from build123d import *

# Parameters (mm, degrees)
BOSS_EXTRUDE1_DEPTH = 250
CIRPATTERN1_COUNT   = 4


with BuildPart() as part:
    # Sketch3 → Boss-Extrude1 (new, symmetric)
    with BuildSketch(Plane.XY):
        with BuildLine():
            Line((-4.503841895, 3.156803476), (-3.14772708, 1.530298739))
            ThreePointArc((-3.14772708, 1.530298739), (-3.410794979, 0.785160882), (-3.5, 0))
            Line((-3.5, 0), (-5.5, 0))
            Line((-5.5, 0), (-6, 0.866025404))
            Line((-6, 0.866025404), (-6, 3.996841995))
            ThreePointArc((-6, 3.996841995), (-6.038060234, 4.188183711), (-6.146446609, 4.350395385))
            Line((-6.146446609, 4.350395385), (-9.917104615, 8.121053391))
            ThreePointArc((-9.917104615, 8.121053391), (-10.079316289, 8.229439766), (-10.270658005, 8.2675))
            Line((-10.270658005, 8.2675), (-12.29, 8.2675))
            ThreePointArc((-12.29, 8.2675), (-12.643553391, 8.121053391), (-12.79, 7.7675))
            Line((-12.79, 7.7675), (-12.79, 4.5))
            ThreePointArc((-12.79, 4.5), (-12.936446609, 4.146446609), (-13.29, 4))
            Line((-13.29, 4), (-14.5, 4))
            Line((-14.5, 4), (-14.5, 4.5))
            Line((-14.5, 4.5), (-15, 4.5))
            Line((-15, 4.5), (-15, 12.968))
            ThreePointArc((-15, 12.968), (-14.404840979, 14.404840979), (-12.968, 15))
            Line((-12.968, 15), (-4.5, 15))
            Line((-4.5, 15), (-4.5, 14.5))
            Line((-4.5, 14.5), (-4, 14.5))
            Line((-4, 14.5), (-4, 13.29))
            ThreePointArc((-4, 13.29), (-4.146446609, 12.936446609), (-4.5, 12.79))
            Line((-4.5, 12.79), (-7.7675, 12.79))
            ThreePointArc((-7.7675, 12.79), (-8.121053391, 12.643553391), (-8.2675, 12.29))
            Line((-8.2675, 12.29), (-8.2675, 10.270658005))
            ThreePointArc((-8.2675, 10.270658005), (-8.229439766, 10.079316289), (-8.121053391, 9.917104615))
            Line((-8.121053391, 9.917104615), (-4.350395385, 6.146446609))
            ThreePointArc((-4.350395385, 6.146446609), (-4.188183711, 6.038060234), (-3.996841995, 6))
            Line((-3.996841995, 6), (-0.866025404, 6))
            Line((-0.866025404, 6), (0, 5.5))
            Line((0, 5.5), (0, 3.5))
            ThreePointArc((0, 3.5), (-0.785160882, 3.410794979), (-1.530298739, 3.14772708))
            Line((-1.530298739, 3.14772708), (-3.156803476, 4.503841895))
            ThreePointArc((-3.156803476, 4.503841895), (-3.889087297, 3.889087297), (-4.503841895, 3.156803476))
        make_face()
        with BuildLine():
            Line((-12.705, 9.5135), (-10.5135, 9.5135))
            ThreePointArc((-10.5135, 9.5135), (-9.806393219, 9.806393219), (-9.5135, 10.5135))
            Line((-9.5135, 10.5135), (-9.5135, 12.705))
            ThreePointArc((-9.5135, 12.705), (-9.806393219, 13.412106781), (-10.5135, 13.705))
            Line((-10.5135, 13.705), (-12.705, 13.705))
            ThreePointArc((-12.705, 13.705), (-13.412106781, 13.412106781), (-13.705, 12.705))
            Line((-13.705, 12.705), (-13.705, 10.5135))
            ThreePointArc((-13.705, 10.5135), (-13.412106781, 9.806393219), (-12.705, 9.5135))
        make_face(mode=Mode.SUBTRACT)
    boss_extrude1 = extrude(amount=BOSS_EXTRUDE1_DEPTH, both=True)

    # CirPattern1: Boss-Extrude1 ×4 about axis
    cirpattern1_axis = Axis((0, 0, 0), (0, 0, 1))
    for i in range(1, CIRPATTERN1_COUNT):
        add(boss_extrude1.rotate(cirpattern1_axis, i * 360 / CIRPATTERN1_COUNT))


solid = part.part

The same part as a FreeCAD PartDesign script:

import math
import FreeCAD as App
import Part
import Sketcher

V = App.Vector
Q = App.Units.Quantity

doc = App.newDocument("Part")
params = doc.addObject("Spreadsheet::Sheet", "Params")
for row, (alias, value) in enumerate([
    ("sketch1_radius", "1 mm"),
    ("sketch1_radius2", "5.5 mm"),
    ("sketch1_radius3", "3.5 mm"),
    ("sketch1_radius4", "0.5 mm"),
    ("sketch1_width", "2 mm"),
    ("pad1_length", "500 mm"),
], start=1):
    params.set(f"A{row}", alias)
    params.set(f"B{row}", "=" + value)
    params.setAlias(f"B{row}", alias)

body = doc.addObject("PartDesign::Body", "Body")

sketch1 = doc.addObject("Sketcher::SketchObject", "Sketch")
body.addObject(sketch1)
sketch1.AttachmentSupport = (doc.XY_Plane, [""])
sketch1.MapMode = "FlatFace"
sketch1.addGeometry([
    Part.LineSegment(V(-3.15, 1.53, 0), V(-4.5, 3.16, 0)),
    Part.ArcOfCircle(Part.Circle(V(0, 0, 0), V(0, 0, 1), 5.5), math.radians(125.03), math.radians(144.97)),
    Part.LineSegment(V(-3.16, 4.5, 0), V(-1.53, 3.15, 0)),
    Part.ArcOfCircle(Part.Circle(V(0, 0, 0), V(0, 0, 1), 3.5), math.radians(90), math.radians(116)),
    Part.LineSegment(V(0, 3.5, 0), V(0, 5.5, 0)),
    Part.LineSegment(V(0, 5.5, 0), V(-0.87, 6, 0)),
    Part.LineSegment(V(-0.87, 6, 0), V(-4, 6, 0)),
    Part.ArcOfCircle(Part.Circle(V(-4, 6.5, 0), V(0, 0, 1), 0.5), math.radians(-135), math.radians(-90)),
    Part.LineSegment(V(-4.35, 6.15, 0), V(-8.12, 9.92, 0)),
    Part.ArcOfCircle(Part.Circle(V(-7.77, 10.27, 0), V(0, 0, 1), 0.5), math.radians(-180), math.radians(-135)),
    Part.LineSegment(V(-8.27, 10.27, 0), V(-8.27, 12.29, 0)),
    Part.ArcOfCircle(Part.Circle(V(-7.77, 12.29, 0), V(0, 0, 1), 0.5), math.radians(90), math.radians(180)),
    Part.LineSegment(V(-7.77, 12.79, 0), V(-4.5, 12.79, 0)),
    Part.ArcOfCircle(Part.Circle(V(-4.5, 13.29, 0), V(0, 0, 1), 0.5), math.radians(-90), math.radians(0)),
    Part.LineSegment(V(-4, 13.29, 0), V(-4, 14.5, 0)),
    Part.LineSegment(V(-4, 14.5, 0), V(-4.5, 14.5, 0)),
    Part.LineSegment(V(-4.5, 14.5, 0), V(-4.5, 15, 0)),
    Part.LineSegment(V(-4.5, 15, 0), V(-12.97, 15, 0)),
    Part.ArcOfCircle(Part.Circle(V(-12.97, 12.97, 0), V(0, 0, 1), 2.03), math.radians(90), math.radians(180)),
    Part.LineSegment(V(-15, 12.97, 0), V(-15, 4.5, 0)),
    Part.LineSegment(V(-15, 4.5, 0), V(-14.5, 4.5, 0)),
    Part.LineSegment(V(-14.5, 4.5, 0), V(-14.5, 4, 0)),
    Part.LineSegment(V(-14.5, 4, 0), V(-13.29, 4, 0)),
    Part.ArcOfCircle(Part.Circle(V(-13.29, 4.5, 0), V(0, 0, 1), 0.5), math.radians(-90), math.radians(0)),
    Part.LineSegment(V(-12.79, 4.5, 0), V(-12.79, 7.77, 0)),
    Part.ArcOfCircle(Part.Circle(V(-12.29, 7.77, 0), V(0, 0, 1), 0.5), math.radians(90), math.radians(180)),
    Part.LineSegment(V(-12.29, 8.27, 0), V(-10.27, 8.27, 0)),
    Part.ArcOfCircle(Part.Circle(V(-10.27, 7.77, 0), V(0, 0, 1), 0.5), math.radians(45), math.radians(90)),
    Part.LineSegment(V(-9.92, 8.12, 0), V(-6.15, 4.35, 0)),
    Part.ArcOfCircle(Part.Circle(V(-6.5, 4, 0), V(0, 0, 1), 0.5), math.radians(0), math.radians(45)),
    Part.LineSegment(V(-6, 4, 0), V(-6, 0.87, 0)),
    Part.LineSegment(V(-6, 0.87, 0), V(-5.5, 0, 0)),
    Part.LineSegment(V(-5.5, 0, 0), V(-3.5, 0, 0)),
    Part.ArcOfCircle(Part.Circle(V(0, 0, 0), V(0, 0, 1), 3.5), math.radians(154), math.radians(180)),
    Part.ArcOfCircle(Part.Circle(V(-12.7, 10.51, 0), V(0, 0, 1), 1), math.radians(-180), math.radians(-90)),
    Part.LineSegment(V(-13.71, 10.51, 0), V(-13.71, 12.71, 0)),
    Part.ArcOfCircle(Part.Circle(V(-12.7, 12.7, 0), V(0, 0, 1), 1), math.radians(90), math.radians(180)),
    Part.LineSegment(V(-12.71, 13.71, 0), V(-10.51, 13.71, 0)),
    Part.ArcOfCircle(Part.Circle(V(-10.51, 12.7, 0), V(0, 0, 1), 1), math.radians(0), math.radians(90)),
    Part.LineSegment(V(-9.51, 12.71, 0), V(-9.51, 10.51, 0)),
    Part.ArcOfCircle(Part.Circle(V(-10.51, 10.51, 0), V(0, 0, 1), 1), math.radians(-90), math.radians(0)),
    Part.LineSegment(V(-10.51, 9.51, 0), V(-12.71, 9.51, 0)),
], False)
sketch1.addConstraint([
    Sketcher.Constraint("Coincident", 0, 2, 1, 2),
    Sketcher.Constraint("Coincident", 1, 1, 2, 1),
    Sketcher.Constraint("Coincident", 2, 2, 3, 2),
    Sketcher.Constraint("Coincident", 3, 1, 4, 1),
    Sketcher.Constraint("Coincident", 4, 2, 5, 1),
    Sketcher.Constraint("Coincident", 5, 2, 6, 1),
    Sketcher.Constraint("Tangent", 6, 2, 7, 2),
    Sketcher.Constraint("Tangent", 7, 1, 8, 1),
    Sketcher.Constraint("Tangent", 8, 2, 9, 2),
    Sketcher.Constraint("Tangent", 9, 1, 10, 1),
    Sketcher.Constraint("Tangent", 10, 2, 11, 2),
    Sketcher.Constraint("Tangent", 11, 1, 12, 1),
    Sketcher.Constraint("Tangent", 12, 2, 13, 1),
    Sketcher.Constraint("Tangent", 13, 2, 14, 1),
    Sketcher.Constraint("Coincident", 14, 2, 15, 1),
    Sketcher.Constraint("Coincident", 15, 2, 16, 1),
    Sketcher.Constraint("Coincident", 16, 2, 17, 1),
    Sketcher.Constraint("Tangent", 17, 2, 18, 1),
    Sketcher.Constraint("Tangent", 18, 2, 19, 1),
    Sketcher.Constraint("Coincident", 19, 2, 20, 1),
    Sketcher.Constraint("Coincident", 20, 2, 21, 1),
    Sketcher.Constraint("Coincident", 21, 2, 22, 1),
    Sketcher.Constraint("Tangent", 22, 2, 23, 1),
    Sketcher.Constraint("Tangent", 23, 2, 24, 1),
    Sketcher.Constraint("Tangent", 24, 2, 25, 2),
    Sketcher.Constraint("Tangent", 25, 1, 26, 1),
    Sketcher.Constraint("Tangent", 26, 2, 27, 2),
    Sketcher.Constraint("Tangent", 27, 1, 28, 1),
    Sketcher.Constraint("Tangent", 28, 2, 29, 2),
    Sketcher.Constraint("Tangent", 29, 1, 30, 1),
    Sketcher.Constraint("Coincident", 30, 2, 31, 1),
    Sketcher.Constraint("Coincident", 31, 2, 32, 1),
    Sketcher.Constraint("Coincident", 32, 2, 33, 2),
    Sketcher.Constraint("Coincident", 33, 1, 0, 1),
    Sketcher.Constraint("Tangent", 34, 1, 35, 1),
    Sketcher.Constraint("Tangent", 35, 2, 36, 2),
    Sketcher.Constraint("Tangent", 36, 1, 37, 1),
    Sketcher.Constraint("Tangent", 37, 2, 38, 2),
    Sketcher.Constraint("Tangent", 38, 1, 39, 1),
    Sketcher.Constraint("Tangent", 39, 2, 40, 2),
    Sketcher.Constraint("Tangent", 40, 1, 41, 1),
    Sketcher.Constraint("Tangent", 41, 2, 34, 2),
    Sketcher.Constraint("Vertical", 4),
    Sketcher.Constraint("Horizontal", 6),
    Sketcher.Constraint("Vertical", 10),
    Sketcher.Constraint("Horizontal", 12),
    Sketcher.Constraint("Vertical", 14),
    Sketcher.Constraint("Horizontal", 15),
    Sketcher.Constraint("Vertical", 16),
    Sketcher.Constraint("Horizontal", 17),
    Sketcher.Constraint("Vertical", 19),
    Sketcher.Constraint("Horizontal", 20),
    Sketcher.Constraint("Vertical", 21),
    Sketcher.Constraint("Horizontal", 22),
    Sketcher.Constraint("Vertical", 24),
    Sketcher.Constraint("Horizontal", 26),
    Sketcher.Constraint("Vertical", 30),
    Sketcher.Constraint("Horizontal", 32),
    Sketcher.Constraint("Vertical", 35),
    Sketcher.Constraint("Horizontal", 37),
    Sketcher.Constraint("Vertical", 39),
    Sketcher.Constraint("Horizontal", 41),
    Sketcher.Constraint("Coincident", 1, 3, -1, 1),
    Sketcher.Constraint("Coincident", 3, 3, -1, 1),
    Sketcher.Constraint("Coincident", 33, 3, -1, 1),
    Sketcher.Constraint("Equal", 7, 9),
    Sketcher.Constraint("Equal", 9, 11),
    Sketcher.Constraint("Equal", 11, 13),
    Sketcher.Constraint("Equal", 13, 23),
    Sketcher.Constraint("Equal", 23, 25),
    Sketcher.Constraint("Equal", 25, 27),
    Sketcher.Constraint("Equal", 27, 29),
    Sketcher.Constraint("Equal", 3, 33),
    Sketcher.Constraint("Equal", 34, 36),
    Sketcher.Constraint("Equal", 36, 38),
    Sketcher.Constraint("Equal", 38, 40),
    Sketcher.Constraint("PointOnObject", 3, 1, -2),
    Sketcher.Constraint("PointOnObject", 31, 2, -1),
    Sketcher.Constraint("Parallel", 8, 28),
    Sketcher.Constraint("Horizontal", 23, 3, 19, 2),
    Sketcher.Constraint("Vertical", 12, 2, 15, 2),
    Sketcher.Constraint("Equal", 15, 20),
    Sketcher.Constraint("Equal", 32, 4),
    Sketcher.Constraint("Equal", 26, 10),
    Sketcher.Constraint("Equal", 22, 14),
    Sketcher.Constraint("Equal", 20, 16),
    Sketcher.Constraint("Equal", 17, 19),
    Sketcher.Constraint("Equal", 12, 24),
    Sketcher.Constraint("Equal", 6, 30),
    Sketcher.Constraint("Equal", 41, 35),
    Sketcher.Constraint("Equal", 0, 2),
    Sketcher.Constraint("Equal", 8, 28),
    Sketcher.Constraint("Equal", 5, 31),
    Sketcher.Constraint("Radius", 34, 1.0),
    Sketcher.Constraint("Radius", 1, 5.5),
    Sketcher.Constraint("Radius", 3, 3.5),
    Sketcher.Constraint("Radius", 7, 0.5),
    Sketcher.Constraint("DistanceX", 32, 1, 32, 2, 2.0),
    Sketcher.Constraint("Angle", 5, Q("150 deg")),
    Sketcher.Constraint("Angle", 8, Q("135 deg")),
    Sketcher.Constraint("Distance", 5, 1.0),
    Sketcher.Constraint("DistanceX", 13, 2, -1, 1, 4.0),
    Sketcher.Constraint("DistanceY", -1, 1, 16, 2, 15.0),
    Sketcher.Constraint("Radius", 18, 2.032),
    Sketcher.Constraint("DistanceX", 22, 1, 22, 2, 1.21),
    Sketcher.Constraint("Angle", 0, Q("129.82 deg")),
    Sketcher.Constraint("Angle", 2, Q("-39.82 deg")),
    Sketcher.Constraint("DistanceX", 12, 1, 12, 2, 3.2675),
    Sketcher.Constraint("DistanceX", 37, 1, 37, 2, 2.1915),
    Sketcher.Constraint("DistanceX", 34, 3, -1, 1, 12.705),
    Sketcher.Constraint("DistanceY", -1, 1, 36, 3, 12.705),
    Sketcher.Constraint("DistanceX", 0, 2, 7, 3, 0.507),
    Sketcher.Constraint("DistanceX", 26, 1, 26, 2, 2.019342),
])
sketch1.setExpression("Constraints[93]", "Params.sketch1_radius")
sketch1.setExpression("Constraints[94]", "Params.sketch1_radius2")
sketch1.setExpression("Constraints[95]", "Params.sketch1_radius3")
sketch1.setExpression("Constraints[96]", "Params.sketch1_radius4")
sketch1.setExpression("Constraints[97]", "Params.sketch1_width")
pad1 = doc.addObject("PartDesign::Pad", "Pad")
body.addObject(pad1)
pad1.Profile = sketch1
pad1.setExpression("Length", "Params.pad1_length")
pad1.Midplane = True
doc.recompute()

polarpattern = doc.addObject("PartDesign::PolarPattern", "PolarPattern")
body.addObject(polarpattern)
polarpattern.Originals = [pad1]
polarpattern.Axis = (doc.Z_Axis, [""])
polarpattern.Angle = 360
polarpattern.Occurrences = 4
body.Tip = polarpattern

doc.recompute()
